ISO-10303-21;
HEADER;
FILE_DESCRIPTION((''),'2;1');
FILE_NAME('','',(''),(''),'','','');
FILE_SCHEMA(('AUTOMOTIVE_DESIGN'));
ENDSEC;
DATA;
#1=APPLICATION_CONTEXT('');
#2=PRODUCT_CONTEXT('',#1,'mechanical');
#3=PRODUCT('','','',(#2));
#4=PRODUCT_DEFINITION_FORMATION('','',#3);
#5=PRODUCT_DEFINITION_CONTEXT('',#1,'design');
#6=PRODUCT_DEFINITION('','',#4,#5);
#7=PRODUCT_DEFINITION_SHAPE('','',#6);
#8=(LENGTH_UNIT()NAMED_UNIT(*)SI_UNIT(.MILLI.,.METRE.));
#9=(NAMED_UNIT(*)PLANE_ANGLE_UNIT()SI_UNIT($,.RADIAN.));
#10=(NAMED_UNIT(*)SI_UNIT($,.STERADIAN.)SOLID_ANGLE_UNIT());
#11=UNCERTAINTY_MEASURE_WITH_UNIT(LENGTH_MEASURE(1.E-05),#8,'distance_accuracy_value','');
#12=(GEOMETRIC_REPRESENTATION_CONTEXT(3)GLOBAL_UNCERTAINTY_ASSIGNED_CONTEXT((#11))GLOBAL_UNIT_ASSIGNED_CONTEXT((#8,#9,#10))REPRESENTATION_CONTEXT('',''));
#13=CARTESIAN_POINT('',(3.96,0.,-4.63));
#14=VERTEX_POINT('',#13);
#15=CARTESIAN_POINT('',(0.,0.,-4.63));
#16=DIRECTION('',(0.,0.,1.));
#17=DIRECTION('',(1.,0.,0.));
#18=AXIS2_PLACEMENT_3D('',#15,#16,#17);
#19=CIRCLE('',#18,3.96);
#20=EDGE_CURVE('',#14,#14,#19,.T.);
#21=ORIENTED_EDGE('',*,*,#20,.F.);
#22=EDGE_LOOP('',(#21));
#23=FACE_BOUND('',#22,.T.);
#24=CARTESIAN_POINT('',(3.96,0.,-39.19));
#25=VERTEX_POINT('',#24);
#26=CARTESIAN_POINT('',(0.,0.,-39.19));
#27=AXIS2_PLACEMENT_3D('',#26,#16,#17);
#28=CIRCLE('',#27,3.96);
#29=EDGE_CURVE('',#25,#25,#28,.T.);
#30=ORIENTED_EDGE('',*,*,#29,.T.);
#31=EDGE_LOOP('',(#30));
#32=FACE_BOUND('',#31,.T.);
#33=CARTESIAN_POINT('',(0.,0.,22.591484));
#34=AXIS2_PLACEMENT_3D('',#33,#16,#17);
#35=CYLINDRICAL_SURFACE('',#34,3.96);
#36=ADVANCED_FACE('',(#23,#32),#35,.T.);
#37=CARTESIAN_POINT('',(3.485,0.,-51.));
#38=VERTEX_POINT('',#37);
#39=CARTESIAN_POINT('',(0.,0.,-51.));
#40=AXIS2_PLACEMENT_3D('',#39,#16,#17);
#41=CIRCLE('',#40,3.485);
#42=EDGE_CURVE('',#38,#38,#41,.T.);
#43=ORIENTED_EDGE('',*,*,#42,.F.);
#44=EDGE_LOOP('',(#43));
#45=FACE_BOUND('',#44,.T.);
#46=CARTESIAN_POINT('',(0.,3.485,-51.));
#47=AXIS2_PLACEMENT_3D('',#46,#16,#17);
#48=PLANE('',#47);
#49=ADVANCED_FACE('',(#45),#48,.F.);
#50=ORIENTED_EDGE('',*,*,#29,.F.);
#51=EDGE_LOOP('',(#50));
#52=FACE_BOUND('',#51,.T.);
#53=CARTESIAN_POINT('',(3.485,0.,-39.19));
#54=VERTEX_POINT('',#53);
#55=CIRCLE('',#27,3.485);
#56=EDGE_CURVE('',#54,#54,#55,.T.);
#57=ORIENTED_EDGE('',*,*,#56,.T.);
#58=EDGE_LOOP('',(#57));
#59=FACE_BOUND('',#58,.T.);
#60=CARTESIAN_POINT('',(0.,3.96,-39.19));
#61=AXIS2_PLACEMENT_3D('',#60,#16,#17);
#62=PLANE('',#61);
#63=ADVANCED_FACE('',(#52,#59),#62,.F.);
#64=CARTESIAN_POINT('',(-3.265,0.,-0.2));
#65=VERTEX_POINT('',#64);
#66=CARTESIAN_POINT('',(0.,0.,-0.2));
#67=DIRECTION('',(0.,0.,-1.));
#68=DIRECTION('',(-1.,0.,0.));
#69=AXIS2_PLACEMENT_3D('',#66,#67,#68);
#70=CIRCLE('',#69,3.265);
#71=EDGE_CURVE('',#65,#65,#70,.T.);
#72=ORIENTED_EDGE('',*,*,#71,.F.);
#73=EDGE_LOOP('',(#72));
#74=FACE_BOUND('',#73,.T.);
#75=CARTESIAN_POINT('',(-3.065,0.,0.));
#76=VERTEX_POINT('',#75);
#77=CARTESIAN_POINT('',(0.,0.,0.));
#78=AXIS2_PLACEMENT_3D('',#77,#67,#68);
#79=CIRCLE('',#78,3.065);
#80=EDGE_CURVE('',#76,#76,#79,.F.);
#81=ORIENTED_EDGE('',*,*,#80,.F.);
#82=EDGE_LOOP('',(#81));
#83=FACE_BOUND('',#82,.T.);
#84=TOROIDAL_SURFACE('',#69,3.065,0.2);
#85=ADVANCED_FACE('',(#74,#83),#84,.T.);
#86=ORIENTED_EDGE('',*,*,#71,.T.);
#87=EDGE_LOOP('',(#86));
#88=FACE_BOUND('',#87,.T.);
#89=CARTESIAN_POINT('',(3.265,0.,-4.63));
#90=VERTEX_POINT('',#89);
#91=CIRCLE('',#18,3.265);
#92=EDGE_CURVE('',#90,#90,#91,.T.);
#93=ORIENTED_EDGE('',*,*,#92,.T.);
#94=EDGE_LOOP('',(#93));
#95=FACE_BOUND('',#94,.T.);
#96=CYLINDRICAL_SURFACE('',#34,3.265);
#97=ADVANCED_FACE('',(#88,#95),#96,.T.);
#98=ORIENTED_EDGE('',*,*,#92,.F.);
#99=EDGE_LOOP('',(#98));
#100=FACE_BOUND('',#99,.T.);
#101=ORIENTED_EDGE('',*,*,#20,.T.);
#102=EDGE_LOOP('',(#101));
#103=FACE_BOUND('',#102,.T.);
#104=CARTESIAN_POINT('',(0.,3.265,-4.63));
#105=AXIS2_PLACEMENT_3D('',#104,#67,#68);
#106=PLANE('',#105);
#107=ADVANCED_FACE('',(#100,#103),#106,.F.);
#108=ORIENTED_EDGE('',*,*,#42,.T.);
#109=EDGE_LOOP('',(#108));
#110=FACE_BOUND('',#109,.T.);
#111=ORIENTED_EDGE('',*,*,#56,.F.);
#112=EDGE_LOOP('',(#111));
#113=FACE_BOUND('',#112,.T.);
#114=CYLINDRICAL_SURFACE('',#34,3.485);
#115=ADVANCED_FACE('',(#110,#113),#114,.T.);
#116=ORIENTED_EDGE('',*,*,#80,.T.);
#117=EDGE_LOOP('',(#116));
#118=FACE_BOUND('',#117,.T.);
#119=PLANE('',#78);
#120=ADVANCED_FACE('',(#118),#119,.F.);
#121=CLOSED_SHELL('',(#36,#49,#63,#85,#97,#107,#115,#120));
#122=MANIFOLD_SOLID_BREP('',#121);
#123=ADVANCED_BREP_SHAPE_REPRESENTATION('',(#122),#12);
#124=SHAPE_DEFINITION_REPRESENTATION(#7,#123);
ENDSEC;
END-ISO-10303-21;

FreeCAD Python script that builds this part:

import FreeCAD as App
import Part
import Sketcher

V = App.Vector


def edges_at(feature, points):
    """Names of the edges that pass closest to the given points."""
    edges = feature.Shape.Edges
    near = lambda p: min(range(len(edges)), key=lambda i: edges[i].distToShape(Part.Vertex(*p))[0])
    return sorted({f"Edge{near(p) + 1}" for p in points})

doc = App.newDocument("Part")
params = doc.addObject("Spreadsheet::Sheet", "Params")
for row, (alias, value) in enumerate([
    ("sketch1_height", "51 mm"),
    ("sketch1_height2", "11.81 mm"),
    ("sketch1_height3", "34.56 mm"),
    ("revolution_angle", "360 deg"),
    ("fillet_radius", "0.2 mm"),
], start=1):
    params.set(f"A{row}", alias)
    params.set(f"B{row}", "=" + value)
    params.setAlias(f"B{row}", alias)

body = doc.addObject("PartDesign::Body", "Body")

sketch1 = body.newObject("Sketcher::SketchObject", "Sketch")
sketch1.AttachmentSupport = (doc.getObject("YZ_Plane"), [""])
sketch1.MapMode = "FlatFace"
sketch1.addGeometry(Part.LineSegment(V(3.265, 0, 0), V(0, 0, 0)), False)
sketch1.addGeometry(Part.LineSegment(V(0, 0, 0), V(0, -51, 0)), False)
sketch1.addGeometry(Part.LineSegment(V(0, -51, 0), V(3.485, -51, 0)), False)
sketch1.addGeometry(Part.LineSegment(V(3.485, -51, 0), V(3.485, -39.19, 0)), False)
sketch1.addGeometry(Part.LineSegment(V(3.485, -39.19, 0), V(3.96, -39.19, 0)), False)
sketch1.addGeometry(Part.LineSegment(V(3.96, -39.19, 0), V(3.96, -4.63, 0)), False)
sketch1.addGeometry(Part.LineSegment(V(3.96, -4.63, 0), V(3.265, -4.63, 0)), False)
sketch1.addGeometry(Part.LineSegment(V(3.265, -4.63, 0), V(3.265, 0, 0)), False)
sketch1.addConstraint(Sketcher.Constraint("Coincident", 0, 2, 1, 1))
sketch1.addConstraint(Sketcher.Constraint("Coincident", 1, 2, 2, 1))
sketch1.addConstraint(Sketcher.Constraint("Coincident", 2, 2, 3, 1))
sketch1.addConstraint(Sketcher.Constraint("Coincident", 3, 2, 4, 1))
sketch1.addConstraint(Sketcher.Constraint("Coincident", 4, 2, 5, 1))
sketch1.addConstraint(Sketcher.Constraint("Coincident", 5, 2, 6, 1))
sketch1.addConstraint(Sketcher.Constraint("Coincident", 6, 2, 7, 1))
sketch1.addConstraint(Sketcher.Constraint("Coincident", 7, 2, 0, 1))
sketch1.addConstraint(Sketcher.Constraint("Horizontal", 0))
sketch1.addConstraint(Sketcher.Constraint("Vertical", 1))
sketch1.addConstraint(Sketcher.Constraint("Horizontal", 2))
sketch1.addConstraint(Sketcher.Constraint("Vertical", 3))
sketch1.addConstraint(Sketcher.Constraint("Horizontal", 4))
sketch1.addConstraint(Sketcher.Constraint("Vertical", 5))
sketch1.addConstraint(Sketcher.Constraint("Horizontal", 6))
sketch1.addConstraint(Sketcher.Constraint("Vertical", 7))
sketch1.addConstraint(Sketcher.Constraint("Coincident", 0, 2, -1, 1))
sketch1.addConstraint(Sketcher.Constraint("DistanceY", 1, 2, 1, 1, 51.0))
sketch1.addConstraint(Sketcher.Constraint("DistanceY", 3, 1, 3, 2, 11.81))
sketch1.addConstraint(Sketcher.Constraint("DistanceY", 5, 1, 5, 2, 34.56))
sketch1.addConstraint(Sketcher.Constraint("DistanceX", 0, 2, 0, 1, 3.265))
sketch1.addConstraint(Sketcher.Constraint("DistanceX", 2, 1, 2, 2, 3.485))
sketch1.addConstraint(Sketcher.Constraint("DistanceX", 4, 1, 4, 2, 0.475))
sketch1.setExpression("Constraints[17]", "Params.sketch1_height")
sketch1.setExpression("Constraints[18]", "Params.sketch1_height2")
sketch1.setExpression("Constraints[19]", "Params.sketch1_height3")
revolution = body.newObject("PartDesign::Revolution", "Revolution")
revolution.Profile = sketch1
revolution.ReferenceAxis = (sketch1, ["V_Axis"])
revolution.setExpression("Angle", "Params.revolution_angle")
doc.recompute()

fillet = body.newObject("PartDesign::Fillet", "Fillet")
fillet.Base = (revolution, edges_at(revolution, [(0, -3.265, 0)]))
fillet.setExpression("Radius", "Params.fillet_radius")

doc.recompute()
